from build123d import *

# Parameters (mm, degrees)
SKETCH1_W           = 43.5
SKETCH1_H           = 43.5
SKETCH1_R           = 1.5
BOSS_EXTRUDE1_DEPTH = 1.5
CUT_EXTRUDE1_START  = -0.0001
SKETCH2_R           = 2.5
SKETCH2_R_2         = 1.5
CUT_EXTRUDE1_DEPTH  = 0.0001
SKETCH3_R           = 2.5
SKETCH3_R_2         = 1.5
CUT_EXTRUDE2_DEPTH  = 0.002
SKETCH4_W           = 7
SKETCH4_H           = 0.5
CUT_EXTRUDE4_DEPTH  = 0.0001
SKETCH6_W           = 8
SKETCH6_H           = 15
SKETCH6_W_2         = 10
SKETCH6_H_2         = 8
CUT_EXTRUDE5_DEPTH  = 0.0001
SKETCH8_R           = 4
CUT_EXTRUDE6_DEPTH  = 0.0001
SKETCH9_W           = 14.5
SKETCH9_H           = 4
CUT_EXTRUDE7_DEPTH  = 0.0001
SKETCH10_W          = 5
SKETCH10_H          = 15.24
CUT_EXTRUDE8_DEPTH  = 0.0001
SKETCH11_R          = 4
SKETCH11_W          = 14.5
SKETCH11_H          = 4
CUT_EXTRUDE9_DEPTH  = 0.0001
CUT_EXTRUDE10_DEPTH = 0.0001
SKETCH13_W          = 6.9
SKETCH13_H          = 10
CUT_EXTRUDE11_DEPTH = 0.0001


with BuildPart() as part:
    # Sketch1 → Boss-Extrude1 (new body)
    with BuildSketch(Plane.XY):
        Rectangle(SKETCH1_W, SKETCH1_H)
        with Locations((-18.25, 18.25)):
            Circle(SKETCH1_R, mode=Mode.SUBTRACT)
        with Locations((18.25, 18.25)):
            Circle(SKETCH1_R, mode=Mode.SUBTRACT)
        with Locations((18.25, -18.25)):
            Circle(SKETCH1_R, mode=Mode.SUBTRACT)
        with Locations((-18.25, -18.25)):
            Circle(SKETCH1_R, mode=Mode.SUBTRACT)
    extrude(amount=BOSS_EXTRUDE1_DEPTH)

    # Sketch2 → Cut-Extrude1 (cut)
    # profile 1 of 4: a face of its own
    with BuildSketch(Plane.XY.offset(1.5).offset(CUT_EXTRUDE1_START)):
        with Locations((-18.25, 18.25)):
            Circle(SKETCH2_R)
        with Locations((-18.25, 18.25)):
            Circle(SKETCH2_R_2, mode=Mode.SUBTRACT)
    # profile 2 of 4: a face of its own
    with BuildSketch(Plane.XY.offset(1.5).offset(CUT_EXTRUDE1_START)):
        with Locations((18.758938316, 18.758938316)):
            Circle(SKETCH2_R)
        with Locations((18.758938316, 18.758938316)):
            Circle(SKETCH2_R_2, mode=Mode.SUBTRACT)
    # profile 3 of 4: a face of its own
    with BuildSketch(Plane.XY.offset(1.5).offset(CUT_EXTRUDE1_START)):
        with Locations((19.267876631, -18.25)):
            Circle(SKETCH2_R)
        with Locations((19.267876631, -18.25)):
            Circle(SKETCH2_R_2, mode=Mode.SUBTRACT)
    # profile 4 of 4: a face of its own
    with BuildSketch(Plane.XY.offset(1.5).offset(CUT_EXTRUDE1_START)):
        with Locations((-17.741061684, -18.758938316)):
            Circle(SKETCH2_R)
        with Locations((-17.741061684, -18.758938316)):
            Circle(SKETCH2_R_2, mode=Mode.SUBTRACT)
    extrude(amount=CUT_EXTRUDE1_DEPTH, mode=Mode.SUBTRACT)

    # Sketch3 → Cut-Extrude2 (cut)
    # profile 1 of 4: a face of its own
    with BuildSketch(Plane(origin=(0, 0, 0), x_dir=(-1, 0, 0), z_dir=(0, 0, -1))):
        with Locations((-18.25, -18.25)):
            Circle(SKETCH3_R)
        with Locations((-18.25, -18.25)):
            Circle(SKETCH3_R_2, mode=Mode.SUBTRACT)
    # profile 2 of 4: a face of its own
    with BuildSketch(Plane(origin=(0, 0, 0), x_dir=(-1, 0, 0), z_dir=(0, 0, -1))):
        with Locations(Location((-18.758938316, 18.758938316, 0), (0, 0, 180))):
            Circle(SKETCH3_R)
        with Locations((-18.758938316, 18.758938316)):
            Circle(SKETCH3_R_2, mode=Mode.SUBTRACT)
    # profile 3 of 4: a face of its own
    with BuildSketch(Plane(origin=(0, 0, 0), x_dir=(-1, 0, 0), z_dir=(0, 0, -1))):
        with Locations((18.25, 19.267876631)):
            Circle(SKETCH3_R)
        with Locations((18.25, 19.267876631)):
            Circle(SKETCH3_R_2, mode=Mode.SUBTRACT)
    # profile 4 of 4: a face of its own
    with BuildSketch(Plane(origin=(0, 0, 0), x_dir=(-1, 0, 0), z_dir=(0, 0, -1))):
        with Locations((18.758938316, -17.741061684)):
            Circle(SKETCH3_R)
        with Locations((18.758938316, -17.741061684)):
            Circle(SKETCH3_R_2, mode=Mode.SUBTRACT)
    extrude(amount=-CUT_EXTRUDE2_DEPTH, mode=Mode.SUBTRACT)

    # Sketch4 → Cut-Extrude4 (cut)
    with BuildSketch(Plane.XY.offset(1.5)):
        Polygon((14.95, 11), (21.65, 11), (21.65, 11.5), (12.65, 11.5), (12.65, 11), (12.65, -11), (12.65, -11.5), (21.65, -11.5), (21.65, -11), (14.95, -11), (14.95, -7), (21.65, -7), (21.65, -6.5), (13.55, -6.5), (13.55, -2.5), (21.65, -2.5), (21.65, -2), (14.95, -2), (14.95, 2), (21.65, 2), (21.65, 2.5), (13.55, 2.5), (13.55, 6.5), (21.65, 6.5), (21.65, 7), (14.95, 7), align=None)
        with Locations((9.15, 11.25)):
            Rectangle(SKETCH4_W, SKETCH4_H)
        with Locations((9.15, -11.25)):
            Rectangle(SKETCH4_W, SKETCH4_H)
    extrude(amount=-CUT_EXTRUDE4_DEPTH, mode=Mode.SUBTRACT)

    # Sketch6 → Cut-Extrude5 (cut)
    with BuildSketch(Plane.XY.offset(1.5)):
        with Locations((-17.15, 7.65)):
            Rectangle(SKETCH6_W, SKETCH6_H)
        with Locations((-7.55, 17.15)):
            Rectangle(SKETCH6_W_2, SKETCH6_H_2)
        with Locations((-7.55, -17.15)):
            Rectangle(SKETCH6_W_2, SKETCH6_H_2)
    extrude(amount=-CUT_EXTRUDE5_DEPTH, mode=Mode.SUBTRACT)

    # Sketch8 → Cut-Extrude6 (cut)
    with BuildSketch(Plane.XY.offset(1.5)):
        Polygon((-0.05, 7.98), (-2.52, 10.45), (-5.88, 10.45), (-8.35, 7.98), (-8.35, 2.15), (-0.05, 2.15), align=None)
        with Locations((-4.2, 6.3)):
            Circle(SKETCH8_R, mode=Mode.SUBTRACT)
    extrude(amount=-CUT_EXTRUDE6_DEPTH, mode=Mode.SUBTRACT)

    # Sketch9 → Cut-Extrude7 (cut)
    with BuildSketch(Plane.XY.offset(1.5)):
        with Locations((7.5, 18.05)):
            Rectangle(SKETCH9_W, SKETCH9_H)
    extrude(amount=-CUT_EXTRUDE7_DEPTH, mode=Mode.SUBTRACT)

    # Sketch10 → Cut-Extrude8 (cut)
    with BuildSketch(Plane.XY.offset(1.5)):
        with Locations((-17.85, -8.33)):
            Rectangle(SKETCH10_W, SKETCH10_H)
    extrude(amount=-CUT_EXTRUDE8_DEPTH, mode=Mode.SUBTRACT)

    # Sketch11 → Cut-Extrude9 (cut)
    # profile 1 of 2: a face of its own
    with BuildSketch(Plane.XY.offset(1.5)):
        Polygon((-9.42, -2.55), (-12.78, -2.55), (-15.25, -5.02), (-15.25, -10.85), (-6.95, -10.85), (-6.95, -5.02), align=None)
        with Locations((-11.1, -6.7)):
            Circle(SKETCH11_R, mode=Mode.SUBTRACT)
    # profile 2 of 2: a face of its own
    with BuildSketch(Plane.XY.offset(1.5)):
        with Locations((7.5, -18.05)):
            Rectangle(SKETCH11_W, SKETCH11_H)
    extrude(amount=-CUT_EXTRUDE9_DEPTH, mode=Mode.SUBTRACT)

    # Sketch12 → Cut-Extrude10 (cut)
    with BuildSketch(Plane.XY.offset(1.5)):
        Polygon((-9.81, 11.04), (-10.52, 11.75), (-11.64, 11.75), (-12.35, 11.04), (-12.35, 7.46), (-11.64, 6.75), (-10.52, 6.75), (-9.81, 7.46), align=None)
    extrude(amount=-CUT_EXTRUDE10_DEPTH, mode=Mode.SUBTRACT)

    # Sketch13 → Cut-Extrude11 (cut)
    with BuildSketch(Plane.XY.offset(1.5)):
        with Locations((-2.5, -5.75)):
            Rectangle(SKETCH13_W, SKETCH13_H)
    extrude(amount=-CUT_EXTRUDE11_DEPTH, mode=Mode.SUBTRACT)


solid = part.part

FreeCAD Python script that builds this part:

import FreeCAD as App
import Part
import Sketcher
from FreeCAD import Vector

doc = App.newDocument("Part")
params = doc.addObject("Spreadsheet::Sheet", "Params")
for row, (alias, value) in enumerate([
    ("sketch1_diameter", "3 mm"),
    ("sketch1_width", "43.5 mm"),
    ("pad1_length", "1.5 mm"),
    ("sketch2_diameter", "5 mm"),
    ("sketch2_diameter2", "3 mm"),
    ("pocket1_length", "0.0001 mm"),
    ("sketch3_diameter", "5 mm"),
    ("sketch3_diameter2", "3 mm"),
    ("pocket2_length", "0.002 mm"),
    ("sketch4_width", "16 mm"),
    ("sketch4_width2", "7 mm"),
    ("sketch4_height", "22 mm"),
    ("sketch4_height2", "4 mm"),
    ("sketch4_width3", "6.7 mm"),
    ("pocket3_length", "0.0001 mm"),
    ("sketch5_width", "8 mm"),
    ("sketch5_width2", "10 mm"),
    ("sketch5_height", "15 mm"),
    ("pocket4_length", "0.0001 mm"),
    ("sketch6_diameter", "8 mm"),
    ("sketch6_width", "8.3 mm"),
    ("sketch6_width2", "3.36 mm"),
    ("sketch6_height", "5.83 mm"),
    ("pocket5_length", "0.0001 mm"),
    ("sketch7_height", "4 mm"),
    ("sketch7_width", "14.5 mm"),
    ("pocket6_length", "0.0001 mm"),
    ("sketch8_width", "5 mm"),
    ("sketch8_height", "15.24 mm"),
    ("pocket7_length", "0.0001 mm"),
    ("sketch9_diameter", "8 mm"),
    ("sketch9_height", "4 mm"),
    ("sketch9_width", "8.3 mm"),
    ("sketch9_width2", "14.5 mm"),
    ("sketch9_width3", "3.36 mm"),
    ("pocket8_length", "0.0001 mm"),
    ("sketch10_width", "1.12 mm"),
    ("sketch10_height", "3.58 mm"),
    ("pocket9_length", "0.0001 mm"),
    ("sketch11_height", "10 mm"),
    ("sketch11_width", "6.9 mm"),
    ("pocket10_length", "0.0001 mm"),
], start=1):
    params.set(f"A{row}", alias)
    params.set(f"B{row}", "=" + value)
    params.setAlias(f"B{row}", alias)

body = doc.addObject("PartDesign::Body", "Body")

sketch1 = body.newObject("Sketcher::SketchObject", "Sketch")
sketch1.AttachmentSupport = (doc.getObject("XY_Plane"), [""])
sketch1.MapMode = "FlatFace"
sketch1.addGeometry(Part.LineSegment(Vector(-21.8, 21.8, 0), Vector(-21.8, -21.8, 0)), False)
sketch1.addGeometry(Part.LineSegment(Vector(-21.8, -21.8, 0), Vector(21.8, -21.8, 0)), False)
sketch1.addGeometry(Part.LineSegment(Vector(21.8, -21.8, 0), Vector(21.8, 21.8, 0)), False)
sketch1.addGeometry(Part.LineSegment(Vector(21.8, 21.8, 0), Vector(-21.8, 21.8, 0)), False)
sketch1.addGeometry(Part.Circle(Vector(-18.2, -18.2, 0), Vector(0, 0, 1), 1.5), False)
sketch1.addGeometry(Part.Circle(Vector(18.2, -18.2, 0), Vector(0, 0, 1), 1.5), False)
sketch1.addGeometry(Part.Circle(Vector(-18.2, 18.2, 0), Vector(0, 0, 1), 1.5), False)
sketch1.addGeometry(Part.Circle(Vector(18.2, 18.2, 0), Vector(0, 0, 1), 1.5), False)
sketch1.addConstraint(Sketcher.Constraint("Coincident", 0, 2, 1, 1))
sketch1.addConstraint(Sketcher.Constraint("Coincident", 1, 2, 2, 1))
sketch1.addConstraint(Sketcher.Constraint("Coincident", 2, 2, 3, 1))
sketch1.addConstraint(Sketcher.Constraint("Coincident", 3, 2, 0, 1))
sketch1.addConstraint(Sketcher.Constraint("Vertical", 0))
sketch1.addConstraint(Sketcher.Constraint("Horizontal", 1))
sketch1.addConstraint(Sketcher.Constraint("Vertical", 2))
sketch1.addConstraint(Sketcher.Constraint("Horizontal", 3))
sketch1.addConstraint(Sketcher.Constraint("Equal", 4, 5))
sketch1.addConstraint(Sketcher.Constraint("Equal", 5, 6))
sketch1.addConstraint(Sketcher.Constraint("Equal", 6, 7))
sketch1.addConstraint(Sketcher.Constraint("Symmetric", 5, 3, 6, 3, -1, 1))
sketch1.addConstraint(Sketcher.Constraint("Symmetric", 4, 3, 7, 3, -1, 1))
sketch1.addConstraint(Sketcher.Constraint("Symmetric", 0, 2, 2, 2, -1, 1))
sketch1.addConstraint(Sketcher.Constraint("Symmetric", 4, 3, 5, 3, -2))
sketch1.addConstraint(Sketcher.Constraint("Equal", 3, 0))
sketch1.addConstraint(Sketcher.Constraint("Diameter", 4, 3.0))
sketch1.addConstraint(Sketcher.Constraint("DistanceX", 1, 1, 1, 2, 43.5))
sketch1.addConstraint(Sketcher.Constraint("DistanceX", 0, 2, 5, 3, 40.0))
sketch1.addConstraint(Sketcher.Constraint("DistanceY", 0, 2, 6, 3, 40.0))
sketch1.setExpression("Constraints[16]", "Params.sketch1_diameter")
sketch1.setExpression("Constraints[17]", "Params.sketch1_width")
pad1 = body.newObject("PartDesign::Pad", "Pad")
pad1.Profile = sketch1
pad1.setExpression("Length", "Params.pad1_length")

sketch2 = body.newObject("Sketcher::SketchObject", "Sketch001")
sketch2.AttachmentSupport = (doc.getObject("XY_Plane"), [""])
sketch2.MapMode = "FlatFace"
sketch2.AttachmentOffset = App.Placement(Vector(0, 0, 1.4999), App.Rotation())
sketch2.addGeometry(Part.Circle(Vector(-18.2, 18.2, 0), Vector(0, 0, 1), 2.5), False)
sketch2.addGeometry(Part.Circle(Vector(-18.2, 18.2, 0), Vector(0, 0, 1), 1.5), False)
sketch2.addGeometry(Part.Circle(Vector(18.8, 18.8, 0), Vector(0, 0, 1), 2.5), False)
sketch2.addGeometry(Part.Circle(Vector(18.8, 18.8, 0), Vector(0, 0, 1), 1.5), False)
sketch2.addGeometry(Part.Circle(Vector(19.3, -18.2, 0), Vector(0, 0, 1), 2.5), False)
sketch2.addGeometry(Part.Circle(Vector(19.3, -18.2, 0), Vector(0, 0, 1), 1.5), False)
sketch2.addGeometry(Part.Circle(Vector(-17.7, -18.8, 0), Vector(0, 0, 1), 2.5), False)
sketch2.addGeometry(Part.Circle(Vector(-17.7, -18.8, 0), Vector(0, 0, 1), 1.5), False)
sketch2.addConstraint(Sketcher.Constraint("Coincident", 1, 3, 0, 3))
sketch2.addConstraint(Sketcher.Constraint("Coincident", 3, 3, 2, 3))
sketch2.addConstraint(Sketcher.Constraint("Coincident", 5, 3, 4, 3))
sketch2.addConstraint(Sketcher.Constraint("Coincident", 7, 3, 6, 3))
sketch2.addConstraint(Sketcher.Constraint("Equal", 0, 2))
sketch2.addConstraint(Sketcher.Constraint("Equal", 1, 3))
sketch2.addConstraint(Sketcher.Constraint("Equal", 2, 4))
sketch2.addConstraint(Sketcher.Constraint("Equal", 3, 5))
sketch2.addConstraint(Sketcher.Constraint("Equal", 4, 6))
sketch2.addConstraint(Sketcher.Constraint("Equal", 5, 7))
sketch2.addConstraint(Sketcher.Constraint("Diameter", 0, 5.0))
sketch2.addConstraint(Sketcher.Constraint("Diameter", 1, 3.0))
sketch2.addConstraint(Sketcher.Constraint("DistanceY", 4, 3, 0, 3, 36.5))
sketch2.addConstraint(Sketcher.Constraint("DistanceX", 6, 3, 2, 3, 36.5))
sketch2.addConstraint(Sketcher.Constraint("DistanceX", 0, 3, -1, 1, 18.25))
sketch2.addConstraint(Sketcher.Constraint("DistanceY", -1, 1, 0, 3, 18.25))
sketch2.addConstraint(Sketcher.Constraint("DistanceX", -1, 1, 2, 3, 18.758938))
sketch2.addConstraint(Sketcher.Constraint("DistanceY", -1, 1, 2, 3, 18.758938))
sketch2.addConstraint(Sketcher.Constraint("DistanceY", 6, 3, -1, 1, 18.758938))
sketch2.addConstraint(Sketcher.Constraint("DistanceX", 2, 3, 4, 3, 0.508938))
sketch2.setExpression("Constraints[10]", "Params.sketch2_diameter")
sketch2.setExpression("Constraints[11]", "Params.sketch2_diameter2")
pocket1 = body.newObject("PartDesign::Pocket", "Pocket")
pocket1.Profile = sketch2
pocket1.setExpression("Length", "Params.pocket1_length")
pocket1.Reversed = True

sketch3 = body.newObject("Sketcher::SketchObject", "Sketch002")
sketch3.AttachmentSupport = (doc.getObject("XY_Plane"), [""])
sketch3.MapMode = "FlatFace"
sketch3.addGeometry(Part.Circle(Vector(18.2, -18.2, 0), Vector(0, 0, 1), 2.5), False)
sketch3.addGeometry(Part.Circle(Vector(18.2, -18.2, 0), Vector(0, 0, 1), 1.5), False)
sketch3.addGeometry(Part.Circle(Vector(18.8, 18.8, 0), Vector(0, 0, 1), 2.5), False)
sketch3.addGeometry(Part.Circle(Vector(18.8, 18.8, 0), Vector(0, 0, 1), 1.5), False)
sketch3.addGeometry(Part.Circle(Vector(-18.2, 19.3, 0), Vector(0, 0, 1), 2.5), False)
sketch3.addGeometry(Part.Circle(Vector(-18.2, 19.3, 0), Vector(0, 0, 1), 1.5), False)
sketch3.addGeometry(Part.Circle(Vector(-18.8, -17.7, 0), Vector(0, 0, 1), 2.5), False)
sketch3.addGeometry(Part.Circle(Vector(-18.8, -17.7, 0), Vector(0, 0, 1), 1.5), False)
sketch3.addConstraint(Sketcher.Constraint("Coincident", 1, 3, 0, 3))
sketch3.addConstraint(Sketcher.Constraint("Coincident", 3, 3, 2, 3))
sketch3.addConstraint(Sketcher.Constraint("Coincident", 5, 3, 4, 3))
sketch3.addConstraint(Sketcher.Constraint("Coincident", 7, 3, 6, 3))
sketch3.addConstraint(Sketcher.Constraint("Equal", 0, 2))
sketch3.addConstraint(Sketcher.Constraint("Equal", 1, 3))
sketch3.addConstraint(Sketcher.Constraint("Equal", 2, 4))
sketch3.addConstraint(Sketcher.Constraint("Equal", 3, 5))
sketch3.addConstraint(Sketcher.Constraint("Equal", 4, 6))
sketch3.addConstraint(Sketcher.Constraint("Equal", 5, 7))
sketch3.addConstraint(Sketcher.Constraint("Diameter", 0, 5.0))
sketch3.addConstraint(Sketcher.Constraint("Diameter", 1, 3.0))
sketch3.addConstraint(Sketcher.Constraint("DistanceX", 4, 3, 0, 3, 36.5))
sketch3.addConstraint(Sketcher.Constraint("DistanceY", 6, 3, 2, 3, 36.5))
sketch3.addConstraint(Sketcher.Constraint("DistanceX", -1, 1, 0, 3, 18.25))
sketch3.addConstraint(Sketcher.Constraint("DistanceY", 0, 3, -1, 1, 18.25))
sketch3.addConstraint(Sketcher.Constraint("DistanceX", -1, 1, 2, 3, 18.758938))
sketch3.addConstraint(Sketcher.Constraint("DistanceY", -1, 1, 2, 3, 18.758938))
sketch3.addConstraint(Sketcher.Constraint("DistanceX", 6, 3, -1, 1, 18.758938))
sketch3.addConstraint(Sketcher.Constraint("DistanceY", 2, 3, 4, 3, 0.508938))
sketch3.setExpression("Constraints[10]", "Params.sketch3_diameter")
sketch3.setExpression("Constraints[11]", "Params.sketch3_diameter2")
pocket2 = body.newObject("PartDesign::Pocket", "Pocket001")
pocket2.Profile = sketch3
pocket2.setExpression("Length", "Params.pocket2_length")
pocket2.Reversed = True

sketch4 = body.newObject("Sketcher::SketchObject", "Sketch003")
sketch4.AttachmentSupport = (doc.getObject("XY_Plane"), [""])
sketch4.MapMode = "FlatFace"
sketch4.AttachmentOffset = App.Placement(Vector(0, 0, 1.5), App.Rotation())
sketch4.addGeometry(Part.LineSegment(Vector(14.9, 11, 0), Vector(21.6, 11, 0)), False)
sketch4.addGeometry(Part.LineSegment(Vector(21.6, 11, 0), Vector(21.6, 11.5, 0)), False)
sketch4.addGeometry(Part.LineSegment(Vector(21.6, 11.5, 0), Vector(5.7, 11.5, 0)), False)
sketch4.addGeometry(Part.LineSegment(Vector(5.7, 11.5, 0), Vector(5.7, 11, 0)), False)
sketch4.addGeometry(Part.LineSegment(Vector(5.7, 11, 0), Vector(12.7, 11, 0)), False)
sketch4.addGeometry(Part.LineSegment(Vector(12.7, 11, 0), Vector(12.7, -11, 0)), False)
sketch4.addGeometry(Part.LineSegment(Vector(12.7, -11, 0), Vector(5.7, -11, 0)), False)
sketch4.addGeometry(Part.LineSegment(Vector(5.7, -11, 0), Vector(5.7, -11.5, 0)), False)
sketch4.addGeometry(Part.LineSegment(Vector(5.7, -11.5, 0), Vector(21.6, -11.5, 0)), False)
sketch4.addGeometry(Part.LineSegment(Vector(21.6, -11.5, 0), Vector(21.6, -11, 0)), False)
sketch4.addGeometry(Part.LineSegment(Vector(21.6, -11, 0), Vector(14.9, -11, 0)), False)
sketch4.addGeometry(Part.LineSegment(Vector(14.9, -11, 0), Vector(14.9, -7, 0)), False)
sketch4.addGeometry(Part.LineSegment(Vector(14.9, -7, 0), Vector(21.6, -7, 0)), False)
sketch4.addGeometry(Part.LineSegment(Vector(21.6, -7, 0), Vector(21.6, -6.5, 0)), False)
sketch4.addGeometry(Part.LineSegment(Vector(21.6, -6.5, 0), Vector(13.6, -6.5, 0)), False)
sketch4.addGeometry(Part.LineSegment(Vector(13.6, -6.5, 0), Vector(13.6, -2.5, 0)), False)
sketch4.addGeometry(Part.LineSegment(Vector(13.6, -2.5, 0), Vector(21.6, -2.5, 0)), False)
sketch4.addGeometry(Part.LineSegment(Vector(21.6, -2.5, 0), Vector(21.6, -2, 0)), False)
sketch4.addGeometry(Part.LineSegment(Vector(21.6, -2, 0), Vector(14.9, -2, 0)), False)
sketch4.addGeometry(Part.LineSegment(Vector(14.9, -2, 0), Vector(14.9, 2, 0)), False)
sketch4.addGeometry(Part.LineSegment(Vector(14.9, 2, 0), Vector(21.6, 2, 0)), False)
sketch4.addGeometry(Part.LineSegment(Vector(21.6, 2, 0), Vector(21.6, 2.5, 0)), False)
sketch4.addGeometry(Part.LineSegment(Vector(21.6, 2.5, 0), Vector(13.6, 2.5, 0)), False)
sketch4.addGeometry(Part.LineSegment(Vector(13.6, 2.5, 0), Vector(13.6, 6.5, 0)), False)
sketch4.addGeometry(Part.LineSegment(Vector(13.6, 6.5, 0), Vector(21.6, 6.5, 0)), False)
sketch4.addGeometry(Part.LineSegment(Vector(21.6, 6.5, 0), Vector(21.6, 7, 0)), False)
sketch4.addGeometry(Part.LineSegment(Vector(21.6, 7, 0), Vector(14.9, 7, 0)), False)
sketch4.addGeometry(Part.LineSegment(Vector(14.9, 7, 0), Vector(14.9, 11, 0)), False)
sketch4.addConstraint(Sketcher.Constraint("Coincident", 0, 2, 1, 1))
sketch4.addConstraint(Sketcher.Constraint("Coincident", 1, 2, 2, 1))
sketch4.addConstraint(Sketcher.Constraint("Coincident", 2, 2, 3, 1))
sketch4.addConstraint(Sketcher.Constraint("Coincident", 3, 2, 4, 1))
sketch4.addConstraint(Sketcher.Constraint("Coincident", 4, 2, 5, 1))
sketch4.addConstraint(Sketcher.Constraint("Coincident", 5, 2, 6, 1))
sketch4.addConstraint(Sketcher.Constraint("Coincident", 6, 2, 7, 1))
sketch4.addConstraint(Sketcher.Constraint("Coincident", 7, 2, 8, 1))
sketch4.addConstraint(Sketcher.Constraint("Coincident", 8, 2, 9, 1))
sketch4.addConstraint(Sketcher.Constraint("Coincident", 9, 2, 10, 1))
sketch4.addConstraint(Sketcher.Constraint("Coincident", 10, 2, 11, 1))
sketch4.addConstraint(Sketcher.Constraint("Coincident", 11, 2, 12, 1))
sketch4.addConstraint(Sketcher.Constraint("Coincident", 12, 2, 13, 1))
sketch4.addConstraint(Sketcher.Constraint("Coincident", 13, 2, 14, 1))
sketch4.addConstraint(Sketcher.Constraint("Coincident", 14, 2, 15, 1))
sketch4.addConstraint(Sketcher.Constraint("Coincident", 15, 2, 16, 1))
sketch4.addConstraint(Sketcher.Constraint("Coincident", 16, 2, 17, 1))
sketch4.addConstraint(Sketcher.Constraint("Coincident", 17, 2, 18, 1))
sketch4.addConstraint(Sketcher.Constraint("Coincident", 18, 2, 19, 1))
sketch4.addConstraint(Sketcher.Constraint("Coincident", 19, 2, 20, 1))
sketch4.addConstraint(Sketcher.Constraint("Coincident", 20, 2, 21, 1))
sketch4.addConstraint(Sketcher.Constraint("Coincident", 21, 2, 22, 1))
sketch4.addConstraint(Sketcher.Constraint("Coincident", 22, 2, 23, 1))
sketch4.addConstraint(Sketcher.Constraint("Coincident", 23, 2, 24, 1))
sketch4.addConstraint(Sketcher.Constraint("Coincident", 24, 2, 25, 1))
sketch4.addConstraint(Sketcher.Constraint("Coincident", 25, 2, 26, 1))
sketch4.addConstraint(Sketcher.Constraint("Coincident", 26, 2, 27, 1))
sketch4.addConstraint(Sketcher.Constraint("Coincident", 27, 2, 0, 1))
sketch4.addConstraint(Sketcher.Constraint("Horizontal", 0))
sketch4.addConstraint(Sketcher.Constraint("Vertical", 1))
sketch4.addConstraint(Sketcher.Constraint("Horizontal", 2))
sketch4.addConstraint(Sketcher.Constraint("Vertical", 3))
sketch4.addConstraint(Sketcher.Constraint("Horizontal", 4))
sketch4.addConstraint(Sketcher.Constraint("Vertical", 5))
sketch4.addConstraint(Sketcher.Constraint("Horizontal", 6))
sketch4.addConstraint(Sketcher.Constraint("Vertical", 7))
sketch4.addConstraint(Sketcher.Constraint("Horizontal", 8))
sketch4.addConstraint(Sketcher.Constraint("Vertical", 9))
sketch4.addConstraint(Sketcher.Constraint("Horizontal", 10))
sketch4.addConstraint(Sketcher.Constraint("Vertical", 11))
sketch4.addConstraint(Sketcher.Constraint("Horizontal", 12))
sketch4.addConstraint(Sketcher.Constraint("Vertical", 13))
sketch4.addConstraint(Sketcher.Constraint("Horizontal", 14))
sketch4.addConstraint(Sketcher.Constraint("Vertical", 15))
sketch4.addConstraint(Sketcher.Constraint("Horizontal", 16))
sketch4.addConstraint(Sketcher.Constraint("Vertical", 17))
sketch4.addConstraint(Sketcher.Constraint("Horizontal", 18))
sketch4.addConstraint(Sketcher.Constraint("Vertical", 19))
sketch4.addConstraint(Sketcher.Constraint("Horizontal", 20))
sketch4.addConstraint(Sketcher.Constraint("Vertical", 21))
sketch4.addConstraint(Sketcher.Constraint("Horizontal", 22))
sketch4.addConstraint(Sketcher.Constraint("Vertical", 23))
sketch4.addConstraint(Sketcher.Constraint("Horizontal", 24))
sketch4.addConstraint(Sketcher.Constraint("Vertical", 25))
sketch4.addConstraint(Sketcher.Constraint("Horizontal", 26))
sketch4.addConstraint(Sketcher.Constraint("Vertical", 27))
sketch4.addConstraint(Sketcher.Constraint("Symmetric", 3, 2, 6, 2, -1))
sketch4.addConstraint(Sketcher.Constraint("Symmetric", 1, 2, 8, 2, -1))
sketch4.addConstraint(Sketcher.Constraint("Symmetric", 17, 2, 20, 2, -1))
sketch4.addConstraint(Sketcher.Constraint("Symmetric", 15, 2, 22, 2, -1))
sketch4.addConstraint(Sketcher.Constraint("Symmetric", 13, 2, 24, 2, -1))
sketch4.addConstraint(Sketcher.Constraint("Symmetric", 11, 2, 26, 2, -1))
sketch4.addConstraint(Sketcher.Constraint("Horizontal", 0, 2, 3, 2))
sketch4.addConstraint(Sketcher.Constraint("Horizontal", 6, 2, 9, 2))
sketch4.addConstraint(Sketcher.Constraint("Vertical", 9, 2, 12, 2))
sketch4.addConstraint(Sketcher.Constraint("Vertical", 13, 2, 16, 2))
sketch4.addConstraint(Sketcher.Constraint("Vertical", 11, 2, 18, 2))
sketch4.addConstraint(Sketcher.Constraint("Equal", 9, 13))
sketch4.addConstraint(Sketcher.Constraint("Equal", 11, 15))
sketch4.addConstraint(Sketcher.Constraint("Equal", 13, 17))
sketch4.addConstraint(Sketcher.Constraint("Equal", 15, 19))
sketch4.addConstraint(Sketcher.Constraint("DistanceX", 2, 2, 2, 1, 16.0))
sketch4.addConstraint(Sketcher.Constraint("DistanceX", 4, 1, 4, 2, 7.0))
sketch4.addConstraint(Sketcher.Constraint("DistanceY", 5, 2, 5, 1, 22.0))
sketch4.addConstraint(Sketcher.Constraint("DistanceY", 11, 1, 11, 2, 4.0))
sketch4.addConstraint(Sketcher.Constraint("DistanceX", 0, 1, 0, 2, 6.7))
sketch4.addConstraint(Sketcher.Constraint("DistanceX", 14, 2, 14, 1, 8.1))
sketch4.addConstraint(Sketcher.Constraint("DistanceX", -1, 1, 0, 2, 21.65))
sketch4.setExpression("Constraints[71]", "Params.sketch4_width")
sketch4.setExpression("Constraints[72]", "Params.sketch4_width2")
sketch4.setExpression("Constraints[73]", "Params.sketch4_height")
sketch4.setExpression("Constraints[74]", "Params.sketch4_height2")
sketch4.setExpression("Constraints[75]", "Params.sketch4_width3")
pocket3 = body.newObject("PartDesign::Pocket", "Pocket002")
pocket3.Profile = sketch4
pocket3.setExpression("Length", "Params.pocket3_length")

sketch5 = body.newObject("Sketcher::SketchObject", "Sketch004")
sketch5.AttachmentSupport = (doc.getObject("XY_Plane"), [""])
sketch5.MapMode = "FlatFace"
sketch5.AttachmentOffset = App.Placement(Vector(0, 0, 1.5), App.Rotation())
sketch5.addGeometry(Part.LineSegment(Vector(-21, 15, 0), Vector(-21, 0, 0)), False)
sketch5.addGeometry(Part.LineSegment(Vector(-21, 0, 0), Vector(-13, 0, 0)), False)
sketch5.addGeometry(Part.LineSegment(Vector(-13, 0, 0), Vector(-13, 15, 0)), False)
sketch5.addGeometry(Part.LineSegment(Vector(-13, 15, 0), Vector(-21, 15, 0)), False)
sketch5.addGeometry(Part.LineSegment(Vector(-13, 21, 0), Vector(-13, 13, 0)), False)
sketch5.addGeometry(Part.LineSegment(Vector(-13, 13, 0), Vector(-3, 13, 0)), False)
sketch5.addGeometry(Part.LineSegment(Vector(-3, 13, 0), Vector(-3, 21, 0)), False)
sketch5.addGeometry(Part.LineSegment(Vector(-3, 21, 0), Vector(-13, 21, 0)), False)
sketch5.addGeometry(Part.LineSegment(Vector(-13, -13, 0), Vector(-13, -21, 0)), False)
sketch5.addGeometry(Part.LineSegment(Vector(-13, -21, 0), Vector(-3, -21, 0)), False)
sketch5.addGeometry(Part.LineSegment(Vector(-3, -21, 0), Vector(-3, -13, 0)), False)
sketch5.addGeometry(Part.LineSegment(Vector(-3, -13, 0), Vector(-13, -13, 0)), False)
sketch5.addConstraint(Sketcher.Constraint("Coincident", 0, 2, 1, 1))
sketch5.addConstraint(Sketcher.Constraint("Coincident", 1, 2, 2, 1))
sketch5.addConstraint(Sketcher.Constraint("Coincident", 2, 2, 3, 1))
sketch5.addConstraint(Sketcher.Constraint("Coincident", 3, 2, 0, 1))
sketch5.addConstraint(Sketcher.Constraint("Coincident", 4, 2, 5, 1))
sketch5.addConstraint(Sketcher.Constraint("Coincident", 5, 2, 6, 1))
sketch5.addConstraint(Sketcher.Constraint("Coincident", 6, 2, 7, 1))
sketch5.addConstraint(Sketcher.Constraint("Coincident", 7, 2, 4, 1))
sketch5.addConstraint(Sketcher.Constraint("Coincident", 8, 2, 9, 1))
sketch5.addConstraint(Sketcher.Constraint("Coincident", 9, 2, 10, 1))
sketch5.addConstraint(Sketcher.Constraint("Coincident", 10, 2, 11, 1))
sketch5.addConstraint(Sketcher.Constraint("Coincident", 11, 2, 8, 1))
sketch5.addConstraint(Sketcher.Constraint("Vertical", 0))
sketch5.addConstraint(Sketcher.Constraint("Horizontal", 1))
sketch5.addConstraint(Sketcher.Constraint("Vertical", 2))
sketch5.addConstraint(Sketcher.Constraint("Horizontal", 3))
sketch5.addConstraint(Sketcher.Constraint("Vertical", 4))
sketch5.addConstraint(Sketcher.Constraint("Horizontal", 5))
sketch5.addConstraint(Sketcher.Constraint("Vertical", 6))
sketch5.addConstraint(Sketcher.Constraint("Horizontal", 7))
sketch5.addConstraint(Sketcher.Constraint("Vertical", 8))
sketch5.addConstraint(Sketcher.Constraint("Horizontal", 9))
sketch5.addConstraint(Sketcher.Constraint("Vertical", 10))
sketch5.addConstraint(Sketcher.Constraint("Horizontal", 11))
sketch5.addConstraint(Sketcher.Constraint("Symmetric", 7, 2, 8, 2, -1))
sketch5.addConstraint(Sketcher.Constraint("Symmetric", 5, 2, 10, 2, -1))
sketch5.addConstraint(Sketcher.Constraint("Equal", 3, 4))
sketch5.addConstraint(Sketcher.Constraint("DistanceX", 1, 1, 1, 2, 8.0))
sketch5.addConstraint(Sketcher.Constraint("DistanceX", 5, 1, 5, 2, 10.0))
sketch5.addConstraint(Sketcher.Constraint("DistanceY", 0, 2, 0, 1, 15.0))
sketch5.addConstraint(Sketcher.Constraint("DistanceY", 4, 2, 2, 2, 2.0))
sketch5.addConstraint(Sketcher.Constraint("DistanceX", 2, 2, 4, 2, 0.6))
sketch5.addConstraint(Sketcher.Constraint("DistanceY", 8, 2, 1, 2, 21.3))
sketch5.addConstraint(Sketcher.Constraint("DistanceX", 0, 2, -1, 1, 21.15))
sketch5.setExpression("Constraints[27]", "Params.sketch5_width")
sketch5.setExpression("Constraints[28]", "Params.sketch5_width2")
sketch5.setExpression("Constraints[29]", "Params.sketch5_height")
pocket4 = body.newObject("PartDesign::Pocket", "Pocket003")
pocket4.Profile = sketch5
pocket4.setExpression("Length", "Params.pocket4_length")

sketch6 = body.newObject("Sketcher::SketchObject", "Sketch005")
sketch6.AttachmentSupport = (doc.getObject("XY_Plane"), [""])
sketch6.MapMode = "FlatFace"
sketch6.AttachmentOffset = App.Placement(Vector(0, 0, 1.5), App.Rotation())
sketch6.addGeometry(Part.LineSegment(Vector(-0.1, 8, 0), Vector(-2.5, 10.4, 0)), False)
sketch6.addGeometry(Part.LineSegment(Vector(-2.5, 10.4, 0), Vector(-5.9, 10.4, 0)), False)
sketch6.addGeometry(Part.LineSegment(Vector(-5.9, 10.4, 0), Vector(-8.3, 8, 0)), False)
sketch6.addGeometry(Part.LineSegment(Vector(-8.3, 8, 0), Vector(-8.3, 2.1, 0)), False)
sketch6.addGeometry(Part.LineSegment(Vector(-8.3, 2.1, 0), Vector(-0.1, 2.1, 0)), False)
sketch6.addGeometry(Part.LineSegment(Vector(-0.1, 2.1, 0), Vector(-0.1, 8, 0)), False)
sketch6.addGeometry(Part.Circle(Vector(-4.2, 6.3, 0), Vector(0, 0, 1), 4), False)
sketch6.addConstraint(Sketcher.Constraint("Coincident", 0, 2, 1, 1))
sketch6.addConstraint(Sketcher.Constraint("Coincident", 1, 2, 2, 1))
sketch6.addConstraint(Sketcher.Constraint("Coincident", 2, 2, 3, 1))
sketch6.addConstraint(Sketcher.Constraint("Coincident", 3, 2, 4, 1))
sketch6.addConstraint(Sketcher.Constraint("Coincident", 4, 2, 5, 1))
sketch6.addConstraint(Sketcher.Constraint("Coincident", 5, 2, 0, 1))
sketch6.addConstraint(Sketcher.Constraint("Horizontal", 1))
sketch6.addConstraint(Sketcher.Constraint("Vertical", 3))
sketch6.addConstraint(Sketcher.Constraint("Horizontal", 4))
sketch6.addConstraint(Sketcher.Constraint("Vertical", 5))
sketch6.addConstraint(Sketcher.Constraint("Perpendicular", 0, 2))
sketch6.addConstraint(Sketcher.Constraint("Horizontal", 2, 2, 5, 2))
sketch6.addConstraint(Sketcher.Constraint("Equal", 0, 2))
sketch6.addConstraint(Sketcher.Constraint("Diameter", 6, 8.0))
sketch6.addConstraint(Sketcher.Constraint("DistanceX", 4, 1, 4, 2, 8.3))
sketch6.addConstraint(Sketcher.Constraint("DistanceX", 1, 2, 1, 1, 3.36))
sketch6.addConstraint(Sketcher.Constraint("DistanceY", 3, 2, 3, 1, 5.83))
sketch6.addConstraint(Sketcher.Constraint("DistanceX", 6, 3, -1, 1, 4.2))
sketch6.addConstraint(Sketcher.Constraint("DistanceY", -1, 1, 6, 3, 6.3))
sketch6.addConstraint(Sketcher.Constraint("DistanceX", 0, 2, -1, 1, 2.52))
sketch6.addConstraint(Sketcher.Constraint("DistanceY", -1, 1, 0, 2, 10.45))
sketch6.setExpression("Constraints[13]", "Params.sketch6_diameter")
sketch6.setExpression("Constraints[14]", "Params.sketch6_width")
sketch6.setExpression("Constraints[15]", "Params.sketch6_width2")
sketch6.setExpression("Constraints[16]", "Params.sketch6_height")
pocket5 = body.newObject("PartDesign::Pocket", "Pocket004")
pocket5.Profile = sketch6
pocket5.setExpression("Length", "Params.pocket5_length")

sketch7 = body.newObject("Sketcher::SketchObject", "Sketch006")
sketch7.AttachmentSupport = (doc.getObject("XY_Plane"), [""])
sketch7.MapMode = "FlatFace"
sketch7.AttachmentOffset = App.Placement(Vector(0, 0, 1.5), App.Rotation())
sketch7.addGeometry(Part.LineSegment(Vector(0.2, 20.1, 0), Vector(0.2, 16.1, 0)), False)
sketch7.addGeometry(Part.LineSegment(Vector(0.2, 16.1, 0), Vector(14.8, 16.1, 0)), False)
sketch7.addGeometry(Part.LineSegment(Vector(14.8, 16.1, 0), Vector(14.8, 20.1, 0)), False)
sketch7.addGeometry(Part.LineSegment(Vector(14.8, 20.1, 0), Vector(0.2, 20.1, 0)), False)
sketch7.addConstraint(Sketcher.Constraint("Coincident", 0, 2, 1, 1))
sketch7.addConstraint(Sketcher.Constraint("Coincident", 1, 2, 2, 1))
sketch7.addConstraint(Sketcher.Constraint("Coincident", 2, 2, 3, 1))
sketch7.addConstraint(Sketcher.Constraint("Coincident", 3, 2, 0, 1))
sketch7.addConstraint(Sketcher.Constraint("Vertical", 0))
sketch7.addConstraint(Sketcher.Constraint("Horizontal", 1))
sketch7.addConstraint(Sketcher.Constraint("Vertical", 2))
sketch7.addConstraint(Sketcher.Constraint("Horizontal", 3))
sketch7.addConstraint(Sketcher.Constraint("DistanceY", 0, 2, 0, 1, 4.0))
sketch7.addConstraint(Sketcher.Constraint("DistanceX", 1, 1, 1, 2, 14.5))
sketch7.addConstraint(Sketcher.Constraint("DistanceX", -1, 1, 0, 2, 0.25))
sketch7.addConstraint(Sketcher.Constraint("DistanceY", -1, 1, 0, 2, 16.05))
sketch7.setExpression("Constraints[8]", "Params.sketch7_height")
sketch7.setExpression("Constraints[9]", "Params.sketch7_width")
pocket6 = body.newObject("PartDesign::Pocket", "Pocket005")
pocket6.Profile = sketch7
pocket6.setExpression("Length", "Params.pocket6_length")

sketch8 = body.newObject("Sketcher::SketchObject", "Sketch007")
sketch8.AttachmentSupport = (doc.getObject("XY_Plane"), [""])
sketch8.MapMode = "FlatFace"
sketch8.AttachmentOffset = App.Placement(Vector(0, 0, 1.5), App.Rotation())
sketch8.addGeometry(Part.LineSegment(Vector(-20, -1, 0), Vector(-20, -16, 0)), False)
sketch8.addGeometry(Part.LineSegment(Vector(-20, -16, 0), Vector(-15, -16, 0)), False)
sketch8.addGeometry(Part.LineSegment(Vector(-15, -16, 0), Vector(-15, -1, 0)), False)
sketch8.addGeometry(Part.LineSegment(Vector(-15, -1, 0), Vector(-20, -1, 0)), False)
sketch8.addConstraint(Sketcher.Constraint("Coincident", 0, 2, 1, 1))
sketch8.addConstraint(Sketcher.Constraint("Coincident", 1, 2, 2, 1))
sketch8.addConstraint(Sketcher.Constraint("Coincident", 2, 2, 3, 1))
sketch8.addConstraint(Sketcher.Constraint("Coincident", 3, 2, 0, 1))
sketch8.addConstraint(Sketcher.Constraint("Vertical", 0))
sketch8.addConstraint(Sketcher.Constraint("Horizontal", 1))
sketch8.addConstraint(Sketcher.Constraint("Vertical", 2))
sketch8.addConstraint(Sketcher.Constraint("Horizontal", 3))
sketch8.addConstraint(Sketcher.Constraint("DistanceX", 1, 1, 1, 2, 5.0))
sketch8.addConstraint(Sketcher.Constraint("DistanceY", 0, 2, 0, 1, 15.24))
sketch8.addConstraint(Sketcher.Constraint("DistanceX", 0, 2, -1, 1, 20.35))
sketch8.addConstraint(Sketcher.Constraint("DistanceY", 0, 2, -1, 1, 15.95))
sketch8.setExpression("Constraints[8]", "Params.sketch8_width")
sketch8.setExpression("Constraints[9]", "Params.sketch8_height")
pocket7 = body.newObject("PartDesign::Pocket", "Pocket006")
pocket7.Profile = sketch8
pocket7.setExpression("Length", "Params.pocket7_length")

sketch9 = body.newObject("Sketcher::SketchObject", "Sketch008")
sketch9.AttachmentSupport = (doc.getObject("XY_Plane"), [""])
sketch9.MapMode = "FlatFace"
sketch9.AttachmentOffset = App.Placement(Vector(0, 0, 1.5), App.Rotation())
sketch9.addGeometry(Part.LineSegment(Vector(-9.4, -2.5, 0), Vector(-12.8, -2.5, 0)), False)
sketch9.addGeometry(Part.LineSegment(Vector(-12.8, -2.5, 0), Vector(-15.2, -5, 0)), False)
sketch9.addGeometry(Part.LineSegment(Vector(-15.2, -5, 0), Vector(-15.2, -10.8, 0)), False)
sketch9.addGeometry(Part.LineSegment(Vector(-15.2, -10.8, 0), Vector(-7, -10.8, 0)), False)
sketch9.addGeometry(Part.LineSegment(Vector(-7, -10.8, 0), Vector(-7, -5, 0)), False)
sketch9.addGeometry(Part.LineSegment(Vector(-7, -5, 0), Vector(-9.4, -2.5, 0)), False)
sketch9.addGeometry(Part.Circle(Vector(-11.1, -6.7, 0), Vector(0, 0, 1), 4), False)
sketch9.addGeometry(Part.LineSegment(Vector(0.2, -16.1, 0), Vector(0.2, -20.1, 0)), False)
sketch9.addGeometry(Part.LineSegment(Vector(0.2, -20.1, 0), Vector(14.8, -20.1, 0)), False)
sketch9.addGeometry(Part.LineSegment(Vector(14.8, -20.1, 0), Vector(14.8, -16.1, 0)), False)
sketch9.addGeometry(Part.LineSegment(Vector(14.8, -16.1, 0), Vector(0.2, -16.1, 0)), False)
sketch9.addConstraint(Sketcher.Constraint("Coincident", 0, 2, 1, 1))
sketch9.addConstraint(Sketcher.Constraint("Coincident", 1, 2, 2, 1))
sketch9.addConstraint(Sketcher.Constraint("Coincident", 2, 2, 3, 1))
sketch9.addConstraint(Sketcher.Constraint("Coincident", 3, 2, 4, 1))
sketch9.addConstraint(Sketcher.Constraint("Coincident", 4, 2, 5, 1))
sketch9.addConstraint(Sketcher.Constraint("Coincident", 5, 2, 0, 1))
sketch9.addConstraint(Sketcher.Constraint("Coincident", 7, 2, 8, 1))
sketch9.addConstraint(Sketcher.Constraint("Coincident", 8, 2, 9, 1))
sketch9.addConstraint(Sketcher.Constraint("Coincident", 9, 2, 10, 1))
sketch9.addConstraint(Sketcher.Constraint("Coincident", 10, 2, 7, 1))
sketch9.addConstraint(Sketcher.Constraint("Horizontal", 0))
sketch9.addConstraint(Sketcher.Constraint("Vertical", 2))
sketch9.addConstraint(Sketcher.Constraint("Horizontal", 3))
sketch9.addConstraint(Sketcher.Constraint("Vertical", 4))
sketch9.addConstraint(Sketcher.Constraint("Vertical", 7))
sketch9.addConstraint(Sketcher.Constraint("Horizontal", 8))
sketch9.addConstraint(Sketcher.Constraint("Vertical", 9))
sketch9.addConstraint(Sketcher.Constraint("Horizontal", 10))
sketch9.addConstraint(Sketcher.Constraint("Perpendicular", 1, 5))
sketch9.addConstraint(Sketcher.Constraint("Horizontal", 1, 2, 4, 2))
sketch9.addConstraint(Sketcher.Constraint("Equal", 1, 5))
sketch9.addConstraint(Sketcher.Constraint("Diameter", 6, 8.0))
sketch9.addConstraint(Sketcher.Constraint("DistanceY", 7, 2, 7, 1, 4.0))
sketch9.addConstraint(Sketcher.Constraint("DistanceX", 3, 1, 3, 2, 8.3))
sketch9.addConstraint(Sketcher.Constraint("DistanceX", 8, 1, 8, 2, 14.5))
sketch9.addConstraint(Sketcher.Constraint("DistanceX", 0, 2, 0, 1, 3.36))
sketch9.addConstraint(Sketcher.Constraint("DistanceY", 2, 2, 2, 1, 5.83))
sketch9.addConstraint(Sketcher.Constraint("DistanceX", 6, 3, -1, 1, 11.1))
sketch9.addConstraint(Sketcher.Constraint("DistanceY", 6, 3, -1, 1, 6.7))
sketch9.addConstraint(Sketcher.Constraint("DistanceX", 3, 2, 7, 2, 7.2))
sketch9.addConstraint(Sketcher.Constraint("DistanceY", 7, 2, 3, 2, 9.2))
sketch9.addConstraint(Sketcher.Constraint("DistanceX", 0, 2, -1, 1, 12.78))
sketch9.addConstraint(Sketcher.Constraint("DistanceY", 0, 2, -1, 1, 2.55))
sketch9.setExpression("Constraints[21]", "Params.sketch9_diameter")
sketch9.setExpression("Constraints[22]", "Params.sketch9_height")
sketch9.setExpression("Constraints[23]", "Params.sketch9_width")
sketch9.setExpression("Constraints[24]", "Params.sketch9_width2")
sketch9.setExpression("Constraints[25]", "Params.sketch9_width3")
pocket8 = body.newObject("PartDesign::Pocket", "Pocket007")
pocket8.Profile = sketch9
pocket8.setExpression("Length", "Params.pocket8_length")

sketch10 = body.newObject("Sketcher::SketchObject", "Sketch009")
sketch10.AttachmentSupport = (doc.getObject("XY_Plane"), [""])
sketch10.MapMode = "FlatFace"
sketch10.AttachmentOffset = App.Placement(Vector(0, 0, 1.5), App.Rotation())
sketch10.addGeometry(Part.LineSegment(Vector(-9.8, 11, 0), Vector(-10.5, 11.8, 0)), False)
sketch10.addGeometry(Part.LineSegment(Vector(-10.5, 11.8, 0), Vector(-11.6, 11.8, 0)), False)
sketch10.addGeometry(Part.LineSegment(Vector(-11.6, 11.8, 0), Vector(-12.3, 11, 0)), False)
sketch10.addGeometry(Part.LineSegment(Vector(-12.3, 11, 0), Vector(-12.3, 7.5, 0)), False)
sketch10.addGeometry(Part.LineSegment(Vector(-12.3, 7.5, 0), Vector(-11.6, 6.8, 0)), False)
sketch10.addGeometry(Part.LineSegment(Vector(-11.6, 6.8, 0), Vector(-10.5, 6.8, 0)), False)
sketch10.addGeometry(Part.LineSegment(Vector(-10.5, 6.8, 0), Vector(-9.8, 7.5, 0)), False)
sketch10.addGeometry(Part.LineSegment(Vector(-9.8, 7.5, 0), Vector(-9.8, 11, 0)), False)
sketch10.addConstraint(Sketcher.Constraint("Coincident", 0, 2, 1, 1))
sketch10.addConstraint(Sketcher.Constraint("Coincident", 1, 2, 2, 1))
sketch10.addConstraint(Sketcher.Constraint("Coincident", 2, 2, 3, 1))
sketch10.addConstraint(Sketcher.Constraint("Coincident", 3, 2, 4, 1))
sketch10.addConstraint(Sketcher.Constraint("Coincident", 4, 2, 5, 1))
sketch10.addConstraint(Sketcher.Constraint("Coincident", 5, 2, 6, 1))
sketch10.addConstraint(Sketcher.Constraint("Coincident", 6, 2, 7, 1))
sketch10.addConstraint(Sketcher.Constraint("Coincident", 7, 2, 0, 1))
sketch10.addConstraint(Sketcher.Constraint("Horizontal", 1))
sketch10.addConstraint(Sketcher.Constraint("Vertical", 3))
sketch10.addConstraint(Sketcher.Constraint("Horizontal", 5))
sketch10.addConstraint(Sketcher.Constraint("Vertical", 7))
sketch10.addConstraint(Sketcher.Constraint("Perpendicular", 0, 2))
sketch10.addConstraint(Sketcher.Constraint("Perpendicular", 2, 4))
sketch10.addConstraint(Sketcher.Constraint("Perpendicular", 4, 6))
sketch10.addConstraint(Sketcher.Constraint("Horizontal", 3, 2, 6, 2))
sketch10.addConstraint(Sketcher.Constraint("Horizontal", 2, 2, 7, 2))
sketch10.addConstraint(Sketcher.Constraint("Vertical", 1, 2, 4, 2))
sketch10.addConstraint(Sketcher.Constraint("Vertical", 0, 2, 5, 2))
sketch10.addConstraint(Sketcher.Constraint("DistanceY", 4, 2, 1, 2, 5.0))
sketch10.addConstraint(Sketcher.Constraint("DistanceX", 1, 2, 1, 1, 1.12))
sketch10.addConstraint(Sketcher.Constraint("DistanceY", 3, 2, 3, 1, 3.58))
sketch10.addConstraint(Sketcher.Constraint("DistanceX", 0, 2, -1, 1, 10.52))
sketch10.addConstraint(Sketcher.Constraint("DistanceY", -1, 1, 0, 2, 11.75))
sketch10.setExpression("Constraints[20]", "Params.sketch10_width")
sketch10.setExpression("Constraints[21]", "Params.sketch10_height")
pocket9 = body.newObject("PartDesign::Pocket", "Pocket008")
pocket9.Profile = sketch10
pocket9.setExpression("Length", "Params.pocket9_length")

sketch11 = body.newObject("Sketcher::SketchObject", "Sketch010")
sketch11.AttachmentSupport = (doc.getObject("XY_Plane"), [""])
sketch11.MapMode = "FlatFace"
sketch11.AttachmentOffset = App.Placement(Vector(0, 0, 1.5), App.Rotation())
sketch11.addGeometry(Part.LineSegment(Vector(-6, -1, 0), Vector(-6, -11, 0)), False)
sketch11.addGeometry(Part.LineSegment(Vector(-6, -11, 0), Vector(1, -11, 0)), False)
sketch11.addGeometry(Part.LineSegment(Vector(1, -11, 0), Vector(1, -1, 0)), False)
sketch11.addGeometry(Part.LineSegment(Vector(1, -1, 0), Vector(-6, -1, 0)), False)
sketch11.addConstraint(Sketcher.Constraint("Coincident", 0, 2, 1, 1))
sketch11.addConstraint(Sketcher.Constraint("Coincident", 1, 2, 2, 1))
sketch11.addConstraint(Sketcher.Constraint("Coincident", 2, 2, 3, 1))
sketch11.addConstraint(Sketcher.Constraint("Coincident", 3, 2, 0, 1))
sketch11.addConstraint(Sketcher.Constraint("Vertical", 0))
sketch11.addConstraint(Sketcher.Constraint("Horizontal", 1))
sketch11.addConstraint(Sketcher.Constraint("Vertical", 2))
sketch11.addConstraint(Sketcher.Constraint("Horizontal", 3))
sketch11.addConstraint(Sketcher.Constraint("DistanceY", 0, 2, 0, 1, 10.0))
sketch11.addConstraint(Sketcher.Constraint("DistanceX", 1, 1, 1, 2, 6.9))
sketch11.addConstraint(Sketcher.Constraint("DistanceX", 0, 2, -1, 1, 5.95))
sketch11.addConstraint(Sketcher.Constraint("DistanceY", 0, 2, -1, 1, 10.75))
sketch11.setExpression("Constraints[8]", "Params.sketch11_height")
sketch11.setExpression("Constraints[9]", "Params.sketch11_width")
pocket10 = body.newObject("PartDesign::Pocket", "Pocket009")
pocket10.Profile = sketch11
pocket10.setExpression("Length", "Params.pocket10_length")

doc.recompute()
